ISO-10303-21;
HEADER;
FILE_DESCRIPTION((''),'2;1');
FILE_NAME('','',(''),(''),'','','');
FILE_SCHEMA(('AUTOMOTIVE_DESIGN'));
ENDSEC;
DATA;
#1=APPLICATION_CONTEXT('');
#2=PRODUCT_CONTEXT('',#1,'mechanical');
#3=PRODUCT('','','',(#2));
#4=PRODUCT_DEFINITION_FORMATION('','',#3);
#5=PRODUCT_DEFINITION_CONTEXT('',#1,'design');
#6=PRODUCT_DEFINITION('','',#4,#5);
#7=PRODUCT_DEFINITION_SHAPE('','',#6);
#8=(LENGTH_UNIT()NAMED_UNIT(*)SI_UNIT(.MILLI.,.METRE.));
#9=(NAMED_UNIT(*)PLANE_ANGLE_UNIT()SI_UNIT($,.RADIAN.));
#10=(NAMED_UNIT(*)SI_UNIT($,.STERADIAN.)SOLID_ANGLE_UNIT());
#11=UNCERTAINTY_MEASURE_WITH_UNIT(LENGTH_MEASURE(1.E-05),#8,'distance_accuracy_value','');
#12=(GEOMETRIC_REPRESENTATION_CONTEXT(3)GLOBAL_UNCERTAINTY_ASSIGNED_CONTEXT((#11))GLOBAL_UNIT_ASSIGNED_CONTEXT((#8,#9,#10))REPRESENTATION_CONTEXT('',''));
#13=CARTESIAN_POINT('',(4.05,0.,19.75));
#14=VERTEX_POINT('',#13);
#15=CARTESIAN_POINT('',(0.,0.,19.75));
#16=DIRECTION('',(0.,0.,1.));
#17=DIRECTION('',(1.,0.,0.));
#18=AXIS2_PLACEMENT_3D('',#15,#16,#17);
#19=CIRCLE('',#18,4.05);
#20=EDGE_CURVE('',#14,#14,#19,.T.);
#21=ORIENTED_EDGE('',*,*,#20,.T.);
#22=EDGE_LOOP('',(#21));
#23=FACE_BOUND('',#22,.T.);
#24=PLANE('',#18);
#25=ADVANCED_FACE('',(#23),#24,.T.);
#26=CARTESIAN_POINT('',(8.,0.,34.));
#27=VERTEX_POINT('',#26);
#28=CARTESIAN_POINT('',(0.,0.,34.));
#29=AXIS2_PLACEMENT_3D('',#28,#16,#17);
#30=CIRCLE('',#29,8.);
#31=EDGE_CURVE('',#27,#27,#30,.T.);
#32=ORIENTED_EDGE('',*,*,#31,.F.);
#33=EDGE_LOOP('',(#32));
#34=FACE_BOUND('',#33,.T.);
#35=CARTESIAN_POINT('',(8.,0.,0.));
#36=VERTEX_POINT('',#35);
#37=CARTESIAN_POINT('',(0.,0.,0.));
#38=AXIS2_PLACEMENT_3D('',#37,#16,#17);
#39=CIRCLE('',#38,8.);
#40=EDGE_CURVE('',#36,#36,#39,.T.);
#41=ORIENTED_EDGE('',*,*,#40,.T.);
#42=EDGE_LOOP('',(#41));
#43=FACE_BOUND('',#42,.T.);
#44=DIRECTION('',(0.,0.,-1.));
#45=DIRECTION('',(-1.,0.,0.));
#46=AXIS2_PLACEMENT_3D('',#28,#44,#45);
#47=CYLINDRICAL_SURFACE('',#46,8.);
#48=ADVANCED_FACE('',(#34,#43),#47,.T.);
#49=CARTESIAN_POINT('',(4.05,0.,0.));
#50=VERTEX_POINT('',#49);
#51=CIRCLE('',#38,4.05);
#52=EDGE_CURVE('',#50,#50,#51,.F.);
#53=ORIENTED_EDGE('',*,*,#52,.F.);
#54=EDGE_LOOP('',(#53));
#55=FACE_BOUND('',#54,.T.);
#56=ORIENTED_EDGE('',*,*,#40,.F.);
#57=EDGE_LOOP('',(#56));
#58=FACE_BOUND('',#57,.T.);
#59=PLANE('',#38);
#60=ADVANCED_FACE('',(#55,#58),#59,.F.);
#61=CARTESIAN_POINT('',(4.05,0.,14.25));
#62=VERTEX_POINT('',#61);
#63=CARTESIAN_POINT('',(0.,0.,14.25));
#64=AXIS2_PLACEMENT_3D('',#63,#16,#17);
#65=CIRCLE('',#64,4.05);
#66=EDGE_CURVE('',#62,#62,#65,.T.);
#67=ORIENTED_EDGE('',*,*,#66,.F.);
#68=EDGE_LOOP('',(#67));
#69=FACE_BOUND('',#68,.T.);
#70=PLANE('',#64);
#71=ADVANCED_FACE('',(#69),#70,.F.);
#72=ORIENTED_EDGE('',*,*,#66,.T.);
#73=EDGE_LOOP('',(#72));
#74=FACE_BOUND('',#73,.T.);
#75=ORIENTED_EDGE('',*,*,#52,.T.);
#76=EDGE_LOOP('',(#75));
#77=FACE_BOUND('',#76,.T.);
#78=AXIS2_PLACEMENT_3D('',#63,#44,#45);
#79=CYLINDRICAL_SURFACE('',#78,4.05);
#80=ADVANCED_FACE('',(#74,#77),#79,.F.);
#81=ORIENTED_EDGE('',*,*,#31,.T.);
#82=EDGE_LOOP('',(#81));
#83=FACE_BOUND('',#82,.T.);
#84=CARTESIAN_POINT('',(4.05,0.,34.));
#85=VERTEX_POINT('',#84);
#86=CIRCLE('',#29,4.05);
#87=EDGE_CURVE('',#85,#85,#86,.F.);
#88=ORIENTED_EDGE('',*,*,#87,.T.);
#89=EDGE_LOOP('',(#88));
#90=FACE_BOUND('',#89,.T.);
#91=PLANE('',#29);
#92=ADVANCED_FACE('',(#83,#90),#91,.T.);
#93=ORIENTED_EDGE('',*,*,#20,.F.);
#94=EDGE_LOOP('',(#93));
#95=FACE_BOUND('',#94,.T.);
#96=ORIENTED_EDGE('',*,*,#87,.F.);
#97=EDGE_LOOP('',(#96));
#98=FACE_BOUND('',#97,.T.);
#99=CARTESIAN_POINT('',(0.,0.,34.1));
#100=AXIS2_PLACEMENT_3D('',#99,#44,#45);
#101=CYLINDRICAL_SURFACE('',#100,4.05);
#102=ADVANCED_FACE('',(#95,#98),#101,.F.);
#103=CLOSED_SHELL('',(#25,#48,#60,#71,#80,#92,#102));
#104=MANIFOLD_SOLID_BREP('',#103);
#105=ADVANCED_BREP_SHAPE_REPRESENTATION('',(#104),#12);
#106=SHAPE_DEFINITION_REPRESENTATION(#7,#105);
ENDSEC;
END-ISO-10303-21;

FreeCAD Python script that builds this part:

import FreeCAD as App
import Part
import Sketcher

V = App.Vector

doc = App.newDocument("Part")
params = doc.addObject("Spreadsheet::Sheet", "Params")
for row, (alias, value) in enumerate([
    ("sketch1_diameter", "16 mm"),
    ("pad1_length", "34 mm"),
    ("sketch2_diameter", "8.1 mm"),
    ("pocket1_length", "14.35 mm"),
    ("sketch3_diameter", "8.1 mm"),
    ("pocket2_length", "14.35 mm"),
], start=1):
    params.set(f"A{row}", alias)
    params.set(f"B{row}", "=" + value)
    params.setAlias(f"B{row}", alias)

body = doc.addObject("PartDesign::Body", "Body")

# Sketch on XY plane
sketch1 = body.newObject("Sketcher::SketchObject", "Sketch")
sketch1.AttachmentSupport = (doc.getObject("XY_Plane"), [""])
sketch1.MapMode = "FlatFace"
sketch1.addGeometry(Part.Circle(V(0, 0, 0), V(0, 0, 1), 8), False)
sketch1.addConstraint([
    Sketcher.Constraint("Coincident", 0, 3, -1, 1),
    Sketcher.Constraint("Diameter", 0, 16.0),
])
sketch1.setExpression("Constraints[1]", "Params.sketch1_diameter")
pad1 = body.newObject("PartDesign::Pad", "Pad")
pad1.Profile = sketch1
pad1.setExpression("Length", "Params.pad1_length")

# Sketch on XY plane
sketch2 = body.newObject("Sketcher::SketchObject", "Sketch001")
sketch2.AttachmentSupport = (doc.getObject("XY_Plane"), [""])
sketch2.MapMode = "FlatFace"
sketch2.AttachmentOffset = App.Placement(V(0, 0, -0.1), App.Rotation())
sketch2.addGeometry(Part.Circle(V(0, 0, 0), V(0, 0, 1), 4), False)
sketch2.addConstraint([
    Sketcher.Constraint("Coincident", 0, 3, -1, 1),
    Sketcher.Constraint("Diameter", 0, 8.1),
])
sketch2.setExpression("Constraints[1]", "Params.sketch2_diameter")
pocket1 = body.newObject("PartDesign::Pocket", "Pocket")
pocket1.Profile = sketch2
pocket1.setExpression("Length", "Params.pocket1_length")
pocket1.Reversed = True

# Sketch on XY plane
sketch3 = body.newObject("Sketcher::SketchObject", "Sketch002")
sketch3.AttachmentSupport = (doc.getObject("XY_Plane"), [""])
sketch3.MapMode = "FlatFace"
sketch3.AttachmentOffset = App.Placement(V(0, 0, 19.75), App.Rotation())
sketch3.addGeometry(Part.Circle(V(0, 0, 0), V(0, 0, 1), 4), False)
sketch3.addConstraint([
    Sketcher.Constraint("Coincident", 0, 3, -1, 1),
    Sketcher.Constraint("Diameter", 0, 8.1),
])
sketch3.setExpression("Constraints[1]", "Params.sketch3_diameter")
pocket2 = body.newObject("PartDesign::Pocket", "Pocket001")
pocket2.Profile = sketch3
pocket2.setExpression("Length", "Params.pocket2_length")
pocket2.Reversed = True

doc.recompute()
